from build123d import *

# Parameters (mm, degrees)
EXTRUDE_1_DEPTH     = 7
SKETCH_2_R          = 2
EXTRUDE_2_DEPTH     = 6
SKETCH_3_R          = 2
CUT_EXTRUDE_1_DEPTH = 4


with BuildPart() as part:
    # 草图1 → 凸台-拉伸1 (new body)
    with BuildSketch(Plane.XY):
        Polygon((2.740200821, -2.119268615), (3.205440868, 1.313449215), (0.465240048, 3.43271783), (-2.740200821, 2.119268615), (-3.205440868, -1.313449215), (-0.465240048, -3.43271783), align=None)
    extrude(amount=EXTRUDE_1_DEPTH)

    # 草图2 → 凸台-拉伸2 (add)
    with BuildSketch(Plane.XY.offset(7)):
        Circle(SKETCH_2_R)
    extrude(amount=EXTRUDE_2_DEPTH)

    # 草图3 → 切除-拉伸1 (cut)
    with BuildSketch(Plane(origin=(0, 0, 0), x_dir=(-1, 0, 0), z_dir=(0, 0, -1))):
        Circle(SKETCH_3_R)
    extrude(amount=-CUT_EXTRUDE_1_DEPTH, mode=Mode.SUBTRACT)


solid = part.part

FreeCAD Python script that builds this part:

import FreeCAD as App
import Part
import Sketcher

V = App.Vector


def add_polygon(sketch, points):
    """Adds a closed chain of lines whose ends are joined by coincident constraints."""
    first, n = sketch.GeometryCount, len(points)
    for a, b in zip(points, points[1:] + points[:1]):
        sketch.addGeometry(Part.LineSegment(App.Vector(*a, 0), App.Vector(*b, 0)), False)
    for i in range(n):
        sketch.addConstraint(Sketcher.Constraint("Coincident", first + i, 2, first + (i + 1) % n, 1))

doc = App.newDocument("Part")
params = doc.addObject("Spreadsheet::Sheet", "Params")
for row, (alias, value) in enumerate([
    ("pad1_length", "7 mm"),
    ("sketch2_diameter", "4 mm"),
    ("pad2_length", "6 mm"),
    ("sketch3_diameter", "4 mm"),
    ("pocket1_length", "4 mm"),
], start=1):
    params.set(f"A{row}", alias)
    params.set(f"B{row}", "=" + value)
    params.setAlias(f"B{row}", alias)

body = doc.addObject("PartDesign::Body", "Body")

sketch1 = body.newObject("Sketcher::SketchObject", "Sketch")
sketch1.AttachmentSupport = (doc.getObject("XY_Plane"), [""])
sketch1.MapMode = "FlatFace"
add_polygon(sketch1, [(2.7, -2.1), (3.2, 1.3), (0.5, 3.4), (-2.7, 2.1), (-3.2, -1.3), (-0.5, -3.4)])
sketch1.addConstraint(Sketcher.Constraint("Symmetric", 0, 2, 3, 2, -1, 1))
sketch1.addConstraint(Sketcher.Constraint("Symmetric", 1, 2, 4, 2, -1, 1))
sketch1.addConstraint(Sketcher.Constraint("Symmetric", 2, 2, 5, 2, -1, 1))
sketch1.addConstraint(Sketcher.Constraint("Equal", 0, 1))
sketch1.addConstraint(Sketcher.Constraint("Equal", 1, 2))
sketch1.addConstraint(Sketcher.Constraint("Distance", 0, 3.464102))
sketch1.addConstraint(Sketcher.Constraint("DistanceX", 2, 2, -1, 1, 2.740201))
sketch1.addConstraint(Sketcher.Constraint("DistanceX", 1, 2, 0, 2, 2.740201))
sketch1.addConstraint(Sketcher.Constraint("DistanceY", 3, 2, 0, 2, 2.626898))
pad1 = body.newObject("PartDesign::Pad", "Pad")
pad1.Profile = sketch1
pad1.setExpression("Length", "Params.pad1_length")

sketch2 = body.newObject("Sketcher::SketchObject", "Sketch001")
sketch2.AttachmentSupport = (doc.getObject("XY_Plane"), [""])
sketch2.MapMode = "FlatFace"
sketch2.AttachmentOffset = App.Placement(V(0, 0, 7), App.Rotation())
sketch2.addGeometry(Part.Circle(V(0, 0, 0), V(0, 0, 1), 2), False)
sketch2.addConstraint(Sketcher.Constraint("Coincident", 0, 3, -1, 1))
sketch2.addConstraint(Sketcher.Constraint("Diameter", 0, 4.0))
sketch2.setExpression("Constraints[1]", "Params.sketch2_diameter")
pad2 = body.newObject("PartDesign::Pad", "Pad001")
pad2.Profile = sketch2
pad2.setExpression("Length", "Params.pad2_length")

sketch3 = body.newObject("Sketcher::SketchObject", "Sketch002")
sketch3.AttachmentSupport = (doc.getObject("XY_Plane"), [""])
sketch3.MapMode = "FlatFace"
sketch3.addGeometry(Part.Circle(V(0, 0, 0), V(0, 0, 1), 2), False)
sketch3.addConstraint(Sketcher.Constraint("Coincident", 0, 3, -1, 1))
sketch3.addConstraint(Sketcher.Constraint("Diameter", 0, 4.0))
sketch3.setExpression("Constraints[1]", "Params.sketch3_diameter")
pocket1 = body.newObject("PartDesign::Pocket", "Pocket")
pocket1.Profile = sketch3
pocket1.setExpression("Length", "Params.pocket1_length")
pocket1.Reversed = True

doc.recompute()
